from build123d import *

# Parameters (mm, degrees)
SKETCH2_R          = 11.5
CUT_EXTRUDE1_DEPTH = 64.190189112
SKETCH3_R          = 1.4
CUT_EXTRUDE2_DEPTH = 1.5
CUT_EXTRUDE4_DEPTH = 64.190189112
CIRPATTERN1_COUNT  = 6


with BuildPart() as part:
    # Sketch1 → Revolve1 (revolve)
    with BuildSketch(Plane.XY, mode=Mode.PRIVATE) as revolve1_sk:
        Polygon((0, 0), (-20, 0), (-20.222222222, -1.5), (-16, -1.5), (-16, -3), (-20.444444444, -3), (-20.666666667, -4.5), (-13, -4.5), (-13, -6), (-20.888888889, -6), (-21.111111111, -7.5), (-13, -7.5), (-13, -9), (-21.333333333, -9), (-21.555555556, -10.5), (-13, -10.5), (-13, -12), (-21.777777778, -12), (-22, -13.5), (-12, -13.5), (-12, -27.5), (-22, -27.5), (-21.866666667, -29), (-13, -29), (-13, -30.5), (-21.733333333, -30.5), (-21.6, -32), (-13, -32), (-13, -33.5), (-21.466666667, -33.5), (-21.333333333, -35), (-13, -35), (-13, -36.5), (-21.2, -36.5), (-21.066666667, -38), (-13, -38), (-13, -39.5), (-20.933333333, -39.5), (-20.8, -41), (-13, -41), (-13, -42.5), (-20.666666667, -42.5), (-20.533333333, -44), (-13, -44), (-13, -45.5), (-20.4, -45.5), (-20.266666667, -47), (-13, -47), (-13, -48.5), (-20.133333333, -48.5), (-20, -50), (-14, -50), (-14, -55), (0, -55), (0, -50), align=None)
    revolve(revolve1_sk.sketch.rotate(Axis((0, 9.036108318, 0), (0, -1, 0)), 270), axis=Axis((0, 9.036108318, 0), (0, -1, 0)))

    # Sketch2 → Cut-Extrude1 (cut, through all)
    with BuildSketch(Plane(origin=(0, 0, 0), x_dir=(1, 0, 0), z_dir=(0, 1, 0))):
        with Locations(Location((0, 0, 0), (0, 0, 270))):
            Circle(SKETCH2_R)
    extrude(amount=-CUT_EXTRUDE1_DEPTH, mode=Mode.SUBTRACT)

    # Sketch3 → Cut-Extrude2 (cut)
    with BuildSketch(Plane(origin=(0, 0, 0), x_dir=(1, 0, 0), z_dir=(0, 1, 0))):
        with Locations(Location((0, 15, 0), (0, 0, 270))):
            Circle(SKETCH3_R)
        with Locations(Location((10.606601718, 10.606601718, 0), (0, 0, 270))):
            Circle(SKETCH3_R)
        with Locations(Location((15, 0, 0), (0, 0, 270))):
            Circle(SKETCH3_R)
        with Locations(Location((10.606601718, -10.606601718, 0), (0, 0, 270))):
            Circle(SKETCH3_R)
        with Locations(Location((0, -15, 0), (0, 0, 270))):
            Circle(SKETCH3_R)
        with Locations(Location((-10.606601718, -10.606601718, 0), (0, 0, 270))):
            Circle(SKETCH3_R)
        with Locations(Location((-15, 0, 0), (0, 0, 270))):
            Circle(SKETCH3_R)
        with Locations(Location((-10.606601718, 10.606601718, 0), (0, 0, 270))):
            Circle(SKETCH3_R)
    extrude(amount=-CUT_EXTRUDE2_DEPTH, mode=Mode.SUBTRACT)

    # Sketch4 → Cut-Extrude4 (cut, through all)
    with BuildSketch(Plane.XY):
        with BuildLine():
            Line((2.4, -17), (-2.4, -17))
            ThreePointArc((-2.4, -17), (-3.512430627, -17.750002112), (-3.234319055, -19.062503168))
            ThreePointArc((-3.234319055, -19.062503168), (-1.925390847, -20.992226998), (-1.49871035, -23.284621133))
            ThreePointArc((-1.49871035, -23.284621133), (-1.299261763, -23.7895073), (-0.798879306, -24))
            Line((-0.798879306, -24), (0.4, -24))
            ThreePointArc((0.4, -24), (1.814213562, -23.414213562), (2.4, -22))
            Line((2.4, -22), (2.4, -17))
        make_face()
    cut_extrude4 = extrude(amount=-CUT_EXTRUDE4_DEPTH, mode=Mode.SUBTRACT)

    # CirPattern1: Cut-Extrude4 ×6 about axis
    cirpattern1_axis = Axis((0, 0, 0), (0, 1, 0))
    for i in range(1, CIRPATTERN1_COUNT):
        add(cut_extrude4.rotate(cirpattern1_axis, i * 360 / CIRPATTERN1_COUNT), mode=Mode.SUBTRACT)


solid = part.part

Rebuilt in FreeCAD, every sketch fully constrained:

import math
import FreeCAD as App
import Part
import Sketcher
from FreeCAD import Vector
Q = App.Units.Quantity


def add_polygon(sketch, points):
    """Adds a closed chain of lines whose ends are joined by coincident constraints."""
    first, n = sketch.GeometryCount, len(points)
    for a, b in zip(points, points[1:] + points[:1]):
        sketch.addGeometry(Part.LineSegment(App.Vector(*a, 0), App.Vector(*b, 0)), False)
    for i in range(n):
        sketch.addConstraint(Sketcher.Constraint("Coincident", first + i, 2, first + (i + 1) % n, 1))

doc = App.newDocument("Part")
params = doc.addObject("Spreadsheet::Sheet", "Params")
for row, (alias, value) in enumerate([
    ("sketch1_width", "20 mm"),
    ("sketch1_width2", "10 mm"),
    ("sketch1_width3", "6 mm"),
    ("sketch1_height", "5 mm"),
    ("sketch1_height2", "55 mm"),
    ("revolution_angle", "360 deg"),
    ("sketch2_diameter", "23 mm"),
    ("sketch3_diameter", "2.8 mm"),
    ("pocket2_length", "1.5 mm"),
    ("sketch4_radius", "2 mm"),
    ("sketch4_radius2", "1.2 mm"),
    ("sketch4_radius3", "5.7 mm"),
    ("sketch4_radius4", "0.7 mm"),
    ("sketch4_height", "5 mm"),
], start=1):
    params.set(f"A{row}", alias)
    params.set(f"B{row}", "=" + value)
    params.setAlias(f"B{row}", alias)

body = doc.addObject("PartDesign::Body", "Body")

# Sketch on XY plane
sketch1 = body.newObject("Sketcher::SketchObject", "Sketch")
sketch1.AttachmentSupport = (doc.getObject("XY_Plane"), [""])
sketch1.MapMode = "FlatFace"
add_polygon(sketch1, [(0, 0), (-20, 0), (-20.2, -1.5), (-16, -1.5), (-16, -3), (-20.4, -3), (-20.7, -4.5), (-13, -4.5), (-13, -6), (-20.9, -6), (-21.1, -7.5), (-13, -7.5), (-13, -9), (-21.3, -9), (-21.6, -10.5), (-13, -10.5), (-13, -12), (-21.8, -12), (-22, -13.5), (-12, -13.5), (-12, -27.5), (-22, -27.5), (-21.9, -29), (-13, -29), (-13, -30.5), (-21.7, -30.5), (-21.6, -32), (-13, -32), (-13, -33.5), (-21.5, -33.5), (-21.3, -35), (-13, -35), (-13, -36.5), (-21.2, -36.5), (-21.1, -38), (-13, -38), (-13, -39.5), (-20.9, -39.5), (-20.8, -41), (-13, -41), (-13, -42.5), (-20.7, -42.5), (-20.5, -44), (-13, -44), (-13, -45.5), (-20.4, -45.5), (-20.3, -47), (-13, -47), (-13, -48.5), (-20.1, -48.5), (-20, -50), (-14, -50), (-14, -55), (0, -55)])  # lines 0-53
sketch1.addConstraint(Sketcher.Constraint("Horizontal", 0))
sketch1.addConstraint(Sketcher.Constraint("Horizontal", 2))
sketch1.addConstraint(Sketcher.Constraint("Vertical", 3))
sketch1.addConstraint(Sketcher.Constraint("Horizontal", 4))
sketch1.addConstraint(Sketcher.Constraint("Horizontal", 6))
sketch1.addConstraint(Sketcher.Constraint("Vertical", 7))
sketch1.addConstraint(Sketcher.Constraint("Horizontal", 8))
sketch1.addConstraint(Sketcher.Constraint("Horizontal", 10))
sketch1.addConstraint(Sketcher.Constraint("Vertical", 11))
sketch1.addConstraint(Sketcher.Constraint("Horizontal", 12))
sketch1.addConstraint(Sketcher.Constraint("Horizontal", 14))
sketch1.addConstraint(Sketcher.Constraint("Vertical", 15))
sketch1.addConstraint(Sketcher.Constraint("Horizontal", 16))
sketch1.addConstraint(Sketcher.Constraint("Horizontal", 18))
sketch1.addConstraint(Sketcher.Constraint("Vertical", 19))
sketch1.addConstraint(Sketcher.Constraint("Horizontal", 20))
sketch1.addConstraint(Sketcher.Constraint("Horizontal", 22))
sketch1.addConstraint(Sketcher.Constraint("Vertical", 23))
sketch1.addConstraint(Sketcher.Constraint("Horizontal", 24))
sketch1.addConstraint(Sketcher.Constraint("Horizontal", 26))
sketch1.addConstraint(Sketcher.Constraint("Vertical", 27))
sketch1.addConstraint(Sketcher.Constraint("Horizontal", 28))
sketch1.addConstraint(Sketcher.Constraint("Horizontal", 30))
sketch1.addConstraint(Sketcher.Constraint("Vertical", 31))
sketch1.addConstraint(Sketcher.Constraint("Horizontal", 32))
sketch1.addConstraint(Sketcher.Constraint("Horizontal", 34))
sketch1.addConstraint(Sketcher.Constraint("Vertical", 35))
sketch1.addConstraint(Sketcher.Constraint("Horizontal", 36))
sketch1.addConstraint(Sketcher.Constraint("Horizontal", 38))
sketch1.addConstraint(Sketcher.Constraint("Vertical", 39))
sketch1.addConstraint(Sketcher.Constraint("Horizontal", 40))
sketch1.addConstraint(Sketcher.Constraint("Horizontal", 42))
sketch1.addConstraint(Sketcher.Constraint("Vertical", 43))
sketch1.addConstraint(Sketcher.Constraint("Horizontal", 44))
sketch1.addConstraint(Sketcher.Constraint("Horizontal", 46))
sketch1.addConstraint(Sketcher.Constraint("Vertical", 47))
sketch1.addConstraint(Sketcher.Constraint("Horizontal", 48))
sketch1.addConstraint(Sketcher.Constraint("Horizontal", 50))
sketch1.addConstraint(Sketcher.Constraint("Vertical", 51))
sketch1.addConstraint(Sketcher.Constraint("Horizontal", 52))
sketch1.addConstraint(Sketcher.Constraint("Vertical", 53))
sketch1.addConstraint(Sketcher.Constraint("Coincident", 53, 2, -1, 1))
sketch1.addConstraint(Sketcher.Constraint("Parallel", 1, 5))
sketch1.addConstraint(Sketcher.Constraint("Parallel", 5, 9))
sketch1.addConstraint(Sketcher.Constraint("Parallel", 9, 13))
sketch1.addConstraint(Sketcher.Constraint("Parallel", 13, 17))
sketch1.addConstraint(Sketcher.Constraint("Parallel", 21, 25))
sketch1.addConstraint(Sketcher.Constraint("Parallel", 25, 29))
sketch1.addConstraint(Sketcher.Constraint("Parallel", 29, 33))
sketch1.addConstraint(Sketcher.Constraint("Parallel", 33, 37))
sketch1.addConstraint(Sketcher.Constraint("Parallel", 37, 41))
sketch1.addConstraint(Sketcher.Constraint("Parallel", 41, 45))
sketch1.addConstraint(Sketcher.Constraint("Parallel", 45, 49))
sketch1.addConstraint(Sketcher.Constraint("Vertical", 7, 2, 10, 2))
sketch1.addConstraint(Sketcher.Constraint("Vertical", 11, 2, 14, 2))
sketch1.addConstraint(Sketcher.Constraint("Vertical", 17, 2, 20, 2))
sketch1.addConstraint(Sketcher.Constraint("Vertical", 15, 2, 22, 2))
sketch1.addConstraint(Sketcher.Constraint("Vertical", 23, 2, 26, 2))
sketch1.addConstraint(Sketcher.Constraint("Vertical", 12, 2, 29, 2))
sketch1.addConstraint(Sketcher.Constraint("Vertical", 27, 2, 30, 2))
sketch1.addConstraint(Sketcher.Constraint("Vertical", 31, 2, 34, 2))
sketch1.addConstraint(Sketcher.Constraint("Vertical", 35, 2, 38, 2))
sketch1.addConstraint(Sketcher.Constraint("Vertical", 5, 2, 40, 2))
sketch1.addConstraint(Sketcher.Constraint("Vertical", 39, 2, 42, 2))
sketch1.addConstraint(Sketcher.Constraint("Vertical", 43, 2, 46, 2))
sketch1.addConstraint(Sketcher.Constraint("Vertical", 0, 2, 49, 2))
sketch1.addConstraint(Sketcher.Constraint("Equal", 3, 7))
sketch1.addConstraint(Sketcher.Constraint("Equal", 7, 11))
sketch1.addConstraint(Sketcher.Constraint("Equal", 11, 15))
sketch1.addConstraint(Sketcher.Constraint("Equal", 52, 19))
sketch1.addConstraint(Sketcher.Constraint("Equal", 15, 23))
sketch1.addConstraint(Sketcher.Constraint("Equal", 23, 27))
sketch1.addConstraint(Sketcher.Constraint("Equal", 27, 31))
sketch1.addConstraint(Sketcher.Constraint("Equal", 31, 35))
sketch1.addConstraint(Sketcher.Constraint("Equal", 35, 39))
sketch1.addConstraint(Sketcher.Constraint("Equal", 39, 43))
sketch1.addConstraint(Sketcher.Constraint("Equal", 43, 47))
sketch1.addConstraint(Sketcher.Constraint("Equal", 1, 5))
sketch1.addConstraint(Sketcher.Constraint("Equal", 5, 9))
sketch1.addConstraint(Sketcher.Constraint("Equal", 9, 13))
sketch1.addConstraint(Sketcher.Constraint("Equal", 13, 17))
sketch1.addConstraint(Sketcher.Constraint("Equal", 21, 25))
sketch1.addConstraint(Sketcher.Constraint("Equal", 25, 29))
sketch1.addConstraint(Sketcher.Constraint("Equal", 29, 33))
sketch1.addConstraint(Sketcher.Constraint("Equal", 33, 37))
sketch1.addConstraint(Sketcher.Constraint("Equal", 37, 41))
sketch1.addConstraint(Sketcher.Constraint("Equal", 41, 45))
sketch1.addConstraint(Sketcher.Constraint("Equal", 45, 49))
sketch1.addConstraint(Sketcher.Constraint("DistanceX", 0, 2, 0, 1, Q("20 mm")))
sketch1.addConstraint(Sketcher.Constraint("DistanceX", 18, 1, 18, 2, Q("10 mm")))
sketch1.addConstraint(Sketcher.Constraint("DistanceX", 50, 1, 50, 2, Q("6 mm")))
sketch1.addConstraint(Sketcher.Constraint("DistanceY", 51, 2, 51, 1, Q("5 mm")))
sketch1.addConstraint(Sketcher.Constraint("DistanceY", 53, 1, 53, 2, Q("55 mm")))
sketch1.addConstraint(Sketcher.Constraint("DistanceX", 26, 1, 26, 2, Q("8.6 mm")))
sketch1.addConstraint(Sketcher.Constraint("DistanceX", 32, 2, 32, 1, Q("8.2 mm")))
sketch1.addConstraint(Sketcher.Constraint("DistanceX", 38, 1, 38, 2, Q("7.8 mm")))
sketch1.addConstraint(Sketcher.Constraint("DistanceX", 44, 2, 44, 1, Q("7.4 mm")))
sketch1.addConstraint(Sketcher.Constraint("DistanceY", 3, 2, 3, 1, Q("1.5 mm")))
sketch1.addConstraint(Sketcher.Constraint("DistanceX", 2, 2, -1, 1, Q("16 mm")))
sketch1.addConstraint(Sketcher.Constraint("DistanceY", 3, 2, -1, 1, Q("3 mm")))
sketch1.addConstraint(Sketcher.Constraint("DistanceX", 6, 2, -1, 1, Q("13 mm")))
sketch1.addConstraint(Sketcher.Constraint("DistanceX", 17, 2, -1, 1, Q("22 mm")))
sketch1.addConstraint(Sketcher.Constraint("DistanceX", 21, 2, 28, 2, Q("0.4 mm")))
sketch1.addConstraint(Sketcher.Constraint("DistanceX", 24, 2, 29, 2, Q("0.4 mm")))
sketch1.addConstraint(Sketcher.Constraint("DistanceX", 33, 2, 40, 2, Q("0.4 mm")))
sketch1.addConstraint(Sketcher.Constraint("DistanceX", 8, 2, 8, 1, Q("7.888889 mm")))
sketch1.addConstraint(Sketcher.Constraint("DistanceX", 10, 1, 10, 2, Q("8.111111 mm")))
sketch1.setExpression("Constraints[142]", "Params.sketch1_width")
sketch1.setExpression("Constraints[143]", "Params.sketch1_width2")
sketch1.setExpression("Constraints[144]", "Params.sketch1_width3")
sketch1.setExpression("Constraints[145]", "Params.sketch1_height")
sketch1.setExpression("Constraints[146]", "Params.sketch1_height2")
revolution = body.newObject("PartDesign::Revolution", "Revolution")
revolution.Profile = sketch1
revolution.ReferenceAxis = (sketch1, ["V_Axis"])
revolution.setExpression("Angle", "Params.revolution_angle")

# Sketch on XZ plane
sketch2 = body.newObject("Sketcher::SketchObject", "Sketch001")
sketch2.AttachmentSupport = (doc.getObject("XZ_Plane"), [""])
sketch2.MapMode = "FlatFace"
sketch2.addGeometry(Part.Circle(Vector(0, 0, 0), Vector(0, 0, 1), 12), False)
sketch2.addConstraint(Sketcher.Constraint("Coincident", 0, 3, -1, 1))
sketch2.addConstraint(Sketcher.Constraint("Diameter", 0, Q("23 mm")))
sketch2.setExpression("Constraints[1]", "Params.sketch2_diameter")
pocket1 = body.newObject("PartDesign::Pocket", "Pocket")
pocket1.Profile = sketch2
pocket1.Type = "ThroughAll"
pocket1.Reversed = True

# Sketch on XZ plane
sketch3 = body.newObject("Sketcher::SketchObject", "Sketch002")
sketch3.AttachmentSupport = (doc.getObject("XZ_Plane"), [""])
sketch3.MapMode = "FlatFace"
sketch3.addGeometry(Part.Circle(Vector(0, -15, 0), Vector(0, 0, 1), 1.4), False)
sketch3.addGeometry(Part.Circle(Vector(10.6, -10.6, 0), Vector(0, 0, 1), 1.4), False)
sketch3.addGeometry(Part.Circle(Vector(15, 0, 0), Vector(0, 0, 1), 1.4), False)
sketch3.addGeometry(Part.Circle(Vector(10.6, 10.6, 0), Vector(0, 0, 1), 1.4), False)
sketch3.addGeometry(Part.Circle(Vector(0, 15, 0), Vector(0, 0, 1), 1.4), False)
sketch3.addGeometry(Part.Circle(Vector(-10.6, 10.6, 0), Vector(0, 0, 1), 1.4), False)
sketch3.addGeometry(Part.Circle(Vector(-15, 0, 0), Vector(0, 0, 1), 1.4), False)
sketch3.addGeometry(Part.Circle(Vector(-10.6, -10.6, 0), Vector(0, 0, 1), 1.4), False)
sketch3.addConstraint(Sketcher.Constraint("Equal", 0, 1))
sketch3.addConstraint(Sketcher.Constraint("Equal", 1, 2))
sketch3.addConstraint(Sketcher.Constraint("Equal", 2, 3))
sketch3.addConstraint(Sketcher.Constraint("Equal", 3, 4))
sketch3.addConstraint(Sketcher.Constraint("Equal", 4, 5))
sketch3.addConstraint(Sketcher.Constraint("Equal", 5, 6))
sketch3.addConstraint(Sketcher.Constraint("Equal", 6, 7))
sketch3.addConstraint(Sketcher.Constraint("Symmetric", 0, 3, 4, 3, -1, 1))
sketch3.addConstraint(Sketcher.Constraint("Symmetric", 1, 3, 5, 3, -1, 1))
sketch3.addConstraint(Sketcher.Constraint("Symmetric", 2, 3, 6, 3, -1, 1))
sketch3.addConstraint(Sketcher.Constraint("Symmetric", 3, 3, 7, 3, -1, 1))
sketch3.addConstraint(Sketcher.Constraint("Symmetric", 3, 3, 5, 3, -2))
sketch3.addConstraint(Sketcher.Constraint("PointOnObject", 0, 3, -2))
sketch3.addConstraint(Sketcher.Constraint("PointOnObject", 2, 3, -1))
sketch3.addConstraint(Sketcher.Constraint("Diameter", 0, Q("2.8 mm")))
sketch3.addConstraint(Sketcher.Constraint("DistanceY", 0, 3, -1, 1, Q("15 mm")))
sketch3.addConstraint(Sketcher.Constraint("DistanceX", -1, 1, 2, 3, Q("15 mm")))
sketch3.addConstraint(Sketcher.Constraint("DistanceX", -1, 1, 1, 3, Q("10.606602 mm")))
sketch3.addConstraint(Sketcher.Constraint("DistanceY", 1, 3, -1, 1, Q("10.606602 mm")))
sketch3.setExpression("Constraints[14]", "Params.sketch3_diameter")
pocket2 = body.newObject("PartDesign::Pocket", "Pocket001")
pocket2.Profile = sketch3
pocket2.setExpression("Length", "Params.pocket2_length")
pocket2.Reversed = True

# Sketch on XY plane
sketch4 = body.newObject("Sketcher::SketchObject", "Sketch003")
sketch4.AttachmentSupport = (doc.getObject("XY_Plane"), [""])
sketch4.MapMode = "FlatFace"
sketch4.addGeometry(Part.LineSegment(Vector(2.4, -17, 0), Vector(-2.4, -17, 0)), False)
sketch4.addGeometry(Part.ArcOfCircle(Part.Circle(Vector(-2.4, -18.2, 0), Vector(0, 0, 1), 1.2), math.radians(90), math.radians(226)), False)
sketch4.addGeometry(Part.ArcOfCircle(Part.Circle(Vector(-7.2, -23.2, 0), Vector(0, 0, 1), 5.7), math.radians(-1), math.radians(46)), False)
sketch4.addGeometry(Part.ArcOfCircle(Part.Circle(Vector(-0.8, -23.3, 0), Vector(0, 0, 1), 0.7), math.radians(179), math.radians(270)), False)
sketch4.addGeometry(Part.LineSegment(Vector(-0.8, -24, 0), Vector(0.4, -24, 0)), False)
sketch4.addGeometry(Part.ArcOfCircle(Part.Circle(Vector(0.4, -22, 0), Vector(0, 0, 1), 2), math.radians(-90), math.radians(0)), False)
sketch4.addGeometry(Part.LineSegment(Vector(2.4, -22, 0), Vector(2.4, -17, 0)), False)
sketch4.addConstraint(Sketcher.Constraint("Tangent", 0, 2, 1, 1))
sketch4.addConstraint(Sketcher.Constraint("Tangent", 1, 2, 2, 2))
sketch4.addConstraint(Sketcher.Constraint("Tangent", 2, 1, 3, 1))
sketch4.addConstraint(Sketcher.Constraint("Tangent", 3, 2, 4, 1))
sketch4.addConstraint(Sketcher.Constraint("Tangent", 4, 2, 5, 1))
sketch4.addConstraint(Sketcher.Constraint("Tangent", 5, 2, 6, 1))
sketch4.addConstraint(Sketcher.Constraint("Coincident", 6, 2, 0, 1))
sketch4.addConstraint(Sketcher.Constraint("Horizontal", 0))
sketch4.addConstraint(Sketcher.Constraint("Horizontal", 4))
sketch4.addConstraint(Sketcher.Constraint("Vertical", 6))
sketch4.addConstraint(Sketcher.Constraint("Radius", 5, Q("2 mm")))
sketch4.addConstraint(Sketcher.Constraint("Radius", 1, Q("1.2 mm")))
sketch4.addConstraint(Sketcher.Constraint("Radius", 2, Q("5.7 mm")))
sketch4.addConstraint(Sketcher.Constraint("Radius", 3, Q("0.7 mm")))
sketch4.addConstraint(Sketcher.Constraint("DistanceY", 6, 1, 6, 2, Q("5 mm")))
sketch4.addConstraint(Sketcher.Constraint("DistanceX", 0, 2, 0, 1, Q("4.8 mm")))
sketch4.addConstraint(Sketcher.Constraint("DistanceY", 5, 3, -1, 1, Q("22 mm")))
sketch4.addConstraint(Sketcher.Constraint("DistanceX", 1, 3, -1, 1, Q("2.4 mm")))
sketch4.addConstraint(Sketcher.Constraint("DistanceX", 4, 1, 4, 2, Q("1.198879 mm")))
sketch4.setExpression("Constraints[10]", "Params.sketch4_radius")
sketch4.setExpression("Constraints[11]", "Params.sketch4_radius2")
sketch4.setExpression("Constraints[12]", "Params.sketch4_radius3")
sketch4.setExpression("Constraints[13]", "Params.sketch4_radius4")
sketch4.setExpression("Constraints[14]", "Params.sketch4_height")
pocket3 = body.newObject("PartDesign::Pocket", "Pocket002")
pocket3.Profile = sketch4
pocket3.Type = "ThroughAll"
doc.recompute()

polarpattern = body.newObject("PartDesign::PolarPattern", "PolarPattern")
polarpattern.Originals = [pocket3]
polarpattern.Axis = (doc.getObject("Y_Axis"), [""])
polarpattern.Angle = 360
polarpattern.Occurrences = 6
body.Tip = polarpattern

doc.recompute()
